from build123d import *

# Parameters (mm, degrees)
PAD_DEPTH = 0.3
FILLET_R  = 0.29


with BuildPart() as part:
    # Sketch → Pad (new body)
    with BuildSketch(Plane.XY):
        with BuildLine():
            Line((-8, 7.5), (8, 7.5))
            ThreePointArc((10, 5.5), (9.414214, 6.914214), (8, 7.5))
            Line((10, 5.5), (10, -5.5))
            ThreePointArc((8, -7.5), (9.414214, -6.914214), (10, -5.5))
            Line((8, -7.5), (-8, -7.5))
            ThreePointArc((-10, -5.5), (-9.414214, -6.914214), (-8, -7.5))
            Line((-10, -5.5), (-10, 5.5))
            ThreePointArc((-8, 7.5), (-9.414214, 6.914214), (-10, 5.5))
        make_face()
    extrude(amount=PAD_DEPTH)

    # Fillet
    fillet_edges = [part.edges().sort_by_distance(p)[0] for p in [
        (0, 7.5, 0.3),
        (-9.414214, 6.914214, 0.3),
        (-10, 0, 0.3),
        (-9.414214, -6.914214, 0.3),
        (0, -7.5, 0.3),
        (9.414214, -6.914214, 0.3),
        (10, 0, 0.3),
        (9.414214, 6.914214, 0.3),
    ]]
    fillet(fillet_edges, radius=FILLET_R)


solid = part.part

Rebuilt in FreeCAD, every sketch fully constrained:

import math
import FreeCAD as App
import Part
import Sketcher
from FreeCAD import Vector
Q = App.Units.Quantity


def edges_at(feature, points):
    """Names of the edges that pass closest to the given points."""
    edges = feature.Shape.Edges
    near = lambda p: min(range(len(edges)), key=lambda i: edges[i].distToShape(Part.Vertex(*p))[0])
    return sorted({f"Edge{near(p) + 1}" for p in points})

doc = App.newDocument("Part")
params = doc.addObject("Spreadsheet::Sheet", "Params")
for row, (alias, value) in enumerate([
    ("sketch1_radius", "1.999999 mm"),
    ("sketch1_width", "16 mm"),
    ("sketch1_height", "11 mm"),
    ("pad1_length", "0.3 mm"),
    ("fillet_radius", "0.29 mm"),
], start=1):
    params.set(f"A{row}", alias)
    params.set(f"B{row}", "=" + value)
    params.setAlias(f"B{row}", alias)

body = doc.addObject("PartDesign::Body", "Body")

# Sketch on XY plane
sketch1 = body.newObject("Sketcher::SketchObject", "Sketch")
sketch1.AttachmentSupport = (doc.getObject("XY_Plane"), [""])
sketch1.MapMode = "FlatFace"
sketch1.addGeometry(Part.LineSegment(Vector(8, 7.5, 0), Vector(-8, 7.5, 0)), False)
sketch1.addGeometry(Part.ArcOfCircle(Part.Circle(Vector(-8.000001, 5.500001, 0), Vector(0, 0, 1), 1.999999), math.radians(89.999957), math.radians(180.000043)), False)
sketch1.addGeometry(Part.LineSegment(Vector(-10, 5.5, 0), Vector(-10, -5.5, 0)), False)
sketch1.addGeometry(Part.ArcOfCircle(Part.Circle(Vector(-8.000001, -5.500001, 0), Vector(0, 0, 1), 1.999999), math.radians(179.999957), math.radians(270.000043)), False)
sketch1.addGeometry(Part.LineSegment(Vector(-8, -7.5, 0), Vector(8, -7.5, 0)), False)
sketch1.addGeometry(Part.ArcOfCircle(Part.Circle(Vector(8.000001, -5.500001, 0), Vector(0, 0, 1), 1.999999), math.radians(-90.000043), math.radians(0.000043)), False)
sketch1.addGeometry(Part.LineSegment(Vector(10, -5.5, 0), Vector(10, 5.5, 0)), False)
sketch1.addGeometry(Part.ArcOfCircle(Part.Circle(Vector(8.000001, 5.500001, 0), Vector(0, 0, 1), 1.999999), math.radians(-0.000043), math.radians(90.000043)), False)
sketch1.addConstraint(Sketcher.Constraint("Tangent", 0, 2, 1, 1))
sketch1.addConstraint(Sketcher.Constraint("Tangent", 1, 2, 2, 1))
sketch1.addConstraint(Sketcher.Constraint("Tangent", 2, 2, 3, 1))
sketch1.addConstraint(Sketcher.Constraint("Tangent", 3, 2, 4, 1))
sketch1.addConstraint(Sketcher.Constraint("Tangent", 4, 2, 5, 1))
sketch1.addConstraint(Sketcher.Constraint("Tangent", 5, 2, 6, 1))
sketch1.addConstraint(Sketcher.Constraint("Tangent", 6, 2, 7, 1))
sketch1.addConstraint(Sketcher.Constraint("Tangent", 7, 2, 0, 1))
sketch1.addConstraint(Sketcher.Constraint("Horizontal", 0))
sketch1.addConstraint(Sketcher.Constraint("Vertical", 2))
sketch1.addConstraint(Sketcher.Constraint("Horizontal", 4))
sketch1.addConstraint(Sketcher.Constraint("Vertical", 6))
sketch1.addConstraint(Sketcher.Constraint("Equal", 1, 3))
sketch1.addConstraint(Sketcher.Constraint("Equal", 3, 5))
sketch1.addConstraint(Sketcher.Constraint("Equal", 5, 7))
sketch1.addConstraint(Sketcher.Constraint("Symmetric", 1, 3, 5, 3, -1, 1))
sketch1.addConstraint(Sketcher.Constraint("Radius", 1, Q("1.999999 mm")))
sketch1.addConstraint(Sketcher.Constraint("DistanceX", 0, 2, 0, 1, Q("16 mm")))
sketch1.addConstraint(Sketcher.Constraint("DistanceY", 2, 2, 2, 1, Q("11 mm")))
sketch1.setExpression("Constraints[16]", "Params.sketch1_radius")
sketch1.setExpression("Constraints[17]", "Params.sketch1_width")
sketch1.setExpression("Constraints[18]", "Params.sketch1_height")
pad1 = body.newObject("PartDesign::Pad", "Pad")
pad1.Profile = sketch1
pad1.setExpression("Length", "Params.pad1_length")
doc.recompute()

fillet = body.newObject("PartDesign::Fillet", "Fillet")
fillet.Base = (pad1, edges_at(pad1, [
    (0, 7.5, 0.3),
    (-9.414, 6.914, 0.3),
    (-10, 0, 0.3),
    (-9.414, -6.914, 0.3),
    (0, -7.5, 0.3),
    (9.414, -6.914, 0.3),
    (10, 0, 0.3),
    (9.414, 6.914, 0.3),
]))
fillet.setExpression("Radius", "Params.fillet_radius")

doc.recompute()
